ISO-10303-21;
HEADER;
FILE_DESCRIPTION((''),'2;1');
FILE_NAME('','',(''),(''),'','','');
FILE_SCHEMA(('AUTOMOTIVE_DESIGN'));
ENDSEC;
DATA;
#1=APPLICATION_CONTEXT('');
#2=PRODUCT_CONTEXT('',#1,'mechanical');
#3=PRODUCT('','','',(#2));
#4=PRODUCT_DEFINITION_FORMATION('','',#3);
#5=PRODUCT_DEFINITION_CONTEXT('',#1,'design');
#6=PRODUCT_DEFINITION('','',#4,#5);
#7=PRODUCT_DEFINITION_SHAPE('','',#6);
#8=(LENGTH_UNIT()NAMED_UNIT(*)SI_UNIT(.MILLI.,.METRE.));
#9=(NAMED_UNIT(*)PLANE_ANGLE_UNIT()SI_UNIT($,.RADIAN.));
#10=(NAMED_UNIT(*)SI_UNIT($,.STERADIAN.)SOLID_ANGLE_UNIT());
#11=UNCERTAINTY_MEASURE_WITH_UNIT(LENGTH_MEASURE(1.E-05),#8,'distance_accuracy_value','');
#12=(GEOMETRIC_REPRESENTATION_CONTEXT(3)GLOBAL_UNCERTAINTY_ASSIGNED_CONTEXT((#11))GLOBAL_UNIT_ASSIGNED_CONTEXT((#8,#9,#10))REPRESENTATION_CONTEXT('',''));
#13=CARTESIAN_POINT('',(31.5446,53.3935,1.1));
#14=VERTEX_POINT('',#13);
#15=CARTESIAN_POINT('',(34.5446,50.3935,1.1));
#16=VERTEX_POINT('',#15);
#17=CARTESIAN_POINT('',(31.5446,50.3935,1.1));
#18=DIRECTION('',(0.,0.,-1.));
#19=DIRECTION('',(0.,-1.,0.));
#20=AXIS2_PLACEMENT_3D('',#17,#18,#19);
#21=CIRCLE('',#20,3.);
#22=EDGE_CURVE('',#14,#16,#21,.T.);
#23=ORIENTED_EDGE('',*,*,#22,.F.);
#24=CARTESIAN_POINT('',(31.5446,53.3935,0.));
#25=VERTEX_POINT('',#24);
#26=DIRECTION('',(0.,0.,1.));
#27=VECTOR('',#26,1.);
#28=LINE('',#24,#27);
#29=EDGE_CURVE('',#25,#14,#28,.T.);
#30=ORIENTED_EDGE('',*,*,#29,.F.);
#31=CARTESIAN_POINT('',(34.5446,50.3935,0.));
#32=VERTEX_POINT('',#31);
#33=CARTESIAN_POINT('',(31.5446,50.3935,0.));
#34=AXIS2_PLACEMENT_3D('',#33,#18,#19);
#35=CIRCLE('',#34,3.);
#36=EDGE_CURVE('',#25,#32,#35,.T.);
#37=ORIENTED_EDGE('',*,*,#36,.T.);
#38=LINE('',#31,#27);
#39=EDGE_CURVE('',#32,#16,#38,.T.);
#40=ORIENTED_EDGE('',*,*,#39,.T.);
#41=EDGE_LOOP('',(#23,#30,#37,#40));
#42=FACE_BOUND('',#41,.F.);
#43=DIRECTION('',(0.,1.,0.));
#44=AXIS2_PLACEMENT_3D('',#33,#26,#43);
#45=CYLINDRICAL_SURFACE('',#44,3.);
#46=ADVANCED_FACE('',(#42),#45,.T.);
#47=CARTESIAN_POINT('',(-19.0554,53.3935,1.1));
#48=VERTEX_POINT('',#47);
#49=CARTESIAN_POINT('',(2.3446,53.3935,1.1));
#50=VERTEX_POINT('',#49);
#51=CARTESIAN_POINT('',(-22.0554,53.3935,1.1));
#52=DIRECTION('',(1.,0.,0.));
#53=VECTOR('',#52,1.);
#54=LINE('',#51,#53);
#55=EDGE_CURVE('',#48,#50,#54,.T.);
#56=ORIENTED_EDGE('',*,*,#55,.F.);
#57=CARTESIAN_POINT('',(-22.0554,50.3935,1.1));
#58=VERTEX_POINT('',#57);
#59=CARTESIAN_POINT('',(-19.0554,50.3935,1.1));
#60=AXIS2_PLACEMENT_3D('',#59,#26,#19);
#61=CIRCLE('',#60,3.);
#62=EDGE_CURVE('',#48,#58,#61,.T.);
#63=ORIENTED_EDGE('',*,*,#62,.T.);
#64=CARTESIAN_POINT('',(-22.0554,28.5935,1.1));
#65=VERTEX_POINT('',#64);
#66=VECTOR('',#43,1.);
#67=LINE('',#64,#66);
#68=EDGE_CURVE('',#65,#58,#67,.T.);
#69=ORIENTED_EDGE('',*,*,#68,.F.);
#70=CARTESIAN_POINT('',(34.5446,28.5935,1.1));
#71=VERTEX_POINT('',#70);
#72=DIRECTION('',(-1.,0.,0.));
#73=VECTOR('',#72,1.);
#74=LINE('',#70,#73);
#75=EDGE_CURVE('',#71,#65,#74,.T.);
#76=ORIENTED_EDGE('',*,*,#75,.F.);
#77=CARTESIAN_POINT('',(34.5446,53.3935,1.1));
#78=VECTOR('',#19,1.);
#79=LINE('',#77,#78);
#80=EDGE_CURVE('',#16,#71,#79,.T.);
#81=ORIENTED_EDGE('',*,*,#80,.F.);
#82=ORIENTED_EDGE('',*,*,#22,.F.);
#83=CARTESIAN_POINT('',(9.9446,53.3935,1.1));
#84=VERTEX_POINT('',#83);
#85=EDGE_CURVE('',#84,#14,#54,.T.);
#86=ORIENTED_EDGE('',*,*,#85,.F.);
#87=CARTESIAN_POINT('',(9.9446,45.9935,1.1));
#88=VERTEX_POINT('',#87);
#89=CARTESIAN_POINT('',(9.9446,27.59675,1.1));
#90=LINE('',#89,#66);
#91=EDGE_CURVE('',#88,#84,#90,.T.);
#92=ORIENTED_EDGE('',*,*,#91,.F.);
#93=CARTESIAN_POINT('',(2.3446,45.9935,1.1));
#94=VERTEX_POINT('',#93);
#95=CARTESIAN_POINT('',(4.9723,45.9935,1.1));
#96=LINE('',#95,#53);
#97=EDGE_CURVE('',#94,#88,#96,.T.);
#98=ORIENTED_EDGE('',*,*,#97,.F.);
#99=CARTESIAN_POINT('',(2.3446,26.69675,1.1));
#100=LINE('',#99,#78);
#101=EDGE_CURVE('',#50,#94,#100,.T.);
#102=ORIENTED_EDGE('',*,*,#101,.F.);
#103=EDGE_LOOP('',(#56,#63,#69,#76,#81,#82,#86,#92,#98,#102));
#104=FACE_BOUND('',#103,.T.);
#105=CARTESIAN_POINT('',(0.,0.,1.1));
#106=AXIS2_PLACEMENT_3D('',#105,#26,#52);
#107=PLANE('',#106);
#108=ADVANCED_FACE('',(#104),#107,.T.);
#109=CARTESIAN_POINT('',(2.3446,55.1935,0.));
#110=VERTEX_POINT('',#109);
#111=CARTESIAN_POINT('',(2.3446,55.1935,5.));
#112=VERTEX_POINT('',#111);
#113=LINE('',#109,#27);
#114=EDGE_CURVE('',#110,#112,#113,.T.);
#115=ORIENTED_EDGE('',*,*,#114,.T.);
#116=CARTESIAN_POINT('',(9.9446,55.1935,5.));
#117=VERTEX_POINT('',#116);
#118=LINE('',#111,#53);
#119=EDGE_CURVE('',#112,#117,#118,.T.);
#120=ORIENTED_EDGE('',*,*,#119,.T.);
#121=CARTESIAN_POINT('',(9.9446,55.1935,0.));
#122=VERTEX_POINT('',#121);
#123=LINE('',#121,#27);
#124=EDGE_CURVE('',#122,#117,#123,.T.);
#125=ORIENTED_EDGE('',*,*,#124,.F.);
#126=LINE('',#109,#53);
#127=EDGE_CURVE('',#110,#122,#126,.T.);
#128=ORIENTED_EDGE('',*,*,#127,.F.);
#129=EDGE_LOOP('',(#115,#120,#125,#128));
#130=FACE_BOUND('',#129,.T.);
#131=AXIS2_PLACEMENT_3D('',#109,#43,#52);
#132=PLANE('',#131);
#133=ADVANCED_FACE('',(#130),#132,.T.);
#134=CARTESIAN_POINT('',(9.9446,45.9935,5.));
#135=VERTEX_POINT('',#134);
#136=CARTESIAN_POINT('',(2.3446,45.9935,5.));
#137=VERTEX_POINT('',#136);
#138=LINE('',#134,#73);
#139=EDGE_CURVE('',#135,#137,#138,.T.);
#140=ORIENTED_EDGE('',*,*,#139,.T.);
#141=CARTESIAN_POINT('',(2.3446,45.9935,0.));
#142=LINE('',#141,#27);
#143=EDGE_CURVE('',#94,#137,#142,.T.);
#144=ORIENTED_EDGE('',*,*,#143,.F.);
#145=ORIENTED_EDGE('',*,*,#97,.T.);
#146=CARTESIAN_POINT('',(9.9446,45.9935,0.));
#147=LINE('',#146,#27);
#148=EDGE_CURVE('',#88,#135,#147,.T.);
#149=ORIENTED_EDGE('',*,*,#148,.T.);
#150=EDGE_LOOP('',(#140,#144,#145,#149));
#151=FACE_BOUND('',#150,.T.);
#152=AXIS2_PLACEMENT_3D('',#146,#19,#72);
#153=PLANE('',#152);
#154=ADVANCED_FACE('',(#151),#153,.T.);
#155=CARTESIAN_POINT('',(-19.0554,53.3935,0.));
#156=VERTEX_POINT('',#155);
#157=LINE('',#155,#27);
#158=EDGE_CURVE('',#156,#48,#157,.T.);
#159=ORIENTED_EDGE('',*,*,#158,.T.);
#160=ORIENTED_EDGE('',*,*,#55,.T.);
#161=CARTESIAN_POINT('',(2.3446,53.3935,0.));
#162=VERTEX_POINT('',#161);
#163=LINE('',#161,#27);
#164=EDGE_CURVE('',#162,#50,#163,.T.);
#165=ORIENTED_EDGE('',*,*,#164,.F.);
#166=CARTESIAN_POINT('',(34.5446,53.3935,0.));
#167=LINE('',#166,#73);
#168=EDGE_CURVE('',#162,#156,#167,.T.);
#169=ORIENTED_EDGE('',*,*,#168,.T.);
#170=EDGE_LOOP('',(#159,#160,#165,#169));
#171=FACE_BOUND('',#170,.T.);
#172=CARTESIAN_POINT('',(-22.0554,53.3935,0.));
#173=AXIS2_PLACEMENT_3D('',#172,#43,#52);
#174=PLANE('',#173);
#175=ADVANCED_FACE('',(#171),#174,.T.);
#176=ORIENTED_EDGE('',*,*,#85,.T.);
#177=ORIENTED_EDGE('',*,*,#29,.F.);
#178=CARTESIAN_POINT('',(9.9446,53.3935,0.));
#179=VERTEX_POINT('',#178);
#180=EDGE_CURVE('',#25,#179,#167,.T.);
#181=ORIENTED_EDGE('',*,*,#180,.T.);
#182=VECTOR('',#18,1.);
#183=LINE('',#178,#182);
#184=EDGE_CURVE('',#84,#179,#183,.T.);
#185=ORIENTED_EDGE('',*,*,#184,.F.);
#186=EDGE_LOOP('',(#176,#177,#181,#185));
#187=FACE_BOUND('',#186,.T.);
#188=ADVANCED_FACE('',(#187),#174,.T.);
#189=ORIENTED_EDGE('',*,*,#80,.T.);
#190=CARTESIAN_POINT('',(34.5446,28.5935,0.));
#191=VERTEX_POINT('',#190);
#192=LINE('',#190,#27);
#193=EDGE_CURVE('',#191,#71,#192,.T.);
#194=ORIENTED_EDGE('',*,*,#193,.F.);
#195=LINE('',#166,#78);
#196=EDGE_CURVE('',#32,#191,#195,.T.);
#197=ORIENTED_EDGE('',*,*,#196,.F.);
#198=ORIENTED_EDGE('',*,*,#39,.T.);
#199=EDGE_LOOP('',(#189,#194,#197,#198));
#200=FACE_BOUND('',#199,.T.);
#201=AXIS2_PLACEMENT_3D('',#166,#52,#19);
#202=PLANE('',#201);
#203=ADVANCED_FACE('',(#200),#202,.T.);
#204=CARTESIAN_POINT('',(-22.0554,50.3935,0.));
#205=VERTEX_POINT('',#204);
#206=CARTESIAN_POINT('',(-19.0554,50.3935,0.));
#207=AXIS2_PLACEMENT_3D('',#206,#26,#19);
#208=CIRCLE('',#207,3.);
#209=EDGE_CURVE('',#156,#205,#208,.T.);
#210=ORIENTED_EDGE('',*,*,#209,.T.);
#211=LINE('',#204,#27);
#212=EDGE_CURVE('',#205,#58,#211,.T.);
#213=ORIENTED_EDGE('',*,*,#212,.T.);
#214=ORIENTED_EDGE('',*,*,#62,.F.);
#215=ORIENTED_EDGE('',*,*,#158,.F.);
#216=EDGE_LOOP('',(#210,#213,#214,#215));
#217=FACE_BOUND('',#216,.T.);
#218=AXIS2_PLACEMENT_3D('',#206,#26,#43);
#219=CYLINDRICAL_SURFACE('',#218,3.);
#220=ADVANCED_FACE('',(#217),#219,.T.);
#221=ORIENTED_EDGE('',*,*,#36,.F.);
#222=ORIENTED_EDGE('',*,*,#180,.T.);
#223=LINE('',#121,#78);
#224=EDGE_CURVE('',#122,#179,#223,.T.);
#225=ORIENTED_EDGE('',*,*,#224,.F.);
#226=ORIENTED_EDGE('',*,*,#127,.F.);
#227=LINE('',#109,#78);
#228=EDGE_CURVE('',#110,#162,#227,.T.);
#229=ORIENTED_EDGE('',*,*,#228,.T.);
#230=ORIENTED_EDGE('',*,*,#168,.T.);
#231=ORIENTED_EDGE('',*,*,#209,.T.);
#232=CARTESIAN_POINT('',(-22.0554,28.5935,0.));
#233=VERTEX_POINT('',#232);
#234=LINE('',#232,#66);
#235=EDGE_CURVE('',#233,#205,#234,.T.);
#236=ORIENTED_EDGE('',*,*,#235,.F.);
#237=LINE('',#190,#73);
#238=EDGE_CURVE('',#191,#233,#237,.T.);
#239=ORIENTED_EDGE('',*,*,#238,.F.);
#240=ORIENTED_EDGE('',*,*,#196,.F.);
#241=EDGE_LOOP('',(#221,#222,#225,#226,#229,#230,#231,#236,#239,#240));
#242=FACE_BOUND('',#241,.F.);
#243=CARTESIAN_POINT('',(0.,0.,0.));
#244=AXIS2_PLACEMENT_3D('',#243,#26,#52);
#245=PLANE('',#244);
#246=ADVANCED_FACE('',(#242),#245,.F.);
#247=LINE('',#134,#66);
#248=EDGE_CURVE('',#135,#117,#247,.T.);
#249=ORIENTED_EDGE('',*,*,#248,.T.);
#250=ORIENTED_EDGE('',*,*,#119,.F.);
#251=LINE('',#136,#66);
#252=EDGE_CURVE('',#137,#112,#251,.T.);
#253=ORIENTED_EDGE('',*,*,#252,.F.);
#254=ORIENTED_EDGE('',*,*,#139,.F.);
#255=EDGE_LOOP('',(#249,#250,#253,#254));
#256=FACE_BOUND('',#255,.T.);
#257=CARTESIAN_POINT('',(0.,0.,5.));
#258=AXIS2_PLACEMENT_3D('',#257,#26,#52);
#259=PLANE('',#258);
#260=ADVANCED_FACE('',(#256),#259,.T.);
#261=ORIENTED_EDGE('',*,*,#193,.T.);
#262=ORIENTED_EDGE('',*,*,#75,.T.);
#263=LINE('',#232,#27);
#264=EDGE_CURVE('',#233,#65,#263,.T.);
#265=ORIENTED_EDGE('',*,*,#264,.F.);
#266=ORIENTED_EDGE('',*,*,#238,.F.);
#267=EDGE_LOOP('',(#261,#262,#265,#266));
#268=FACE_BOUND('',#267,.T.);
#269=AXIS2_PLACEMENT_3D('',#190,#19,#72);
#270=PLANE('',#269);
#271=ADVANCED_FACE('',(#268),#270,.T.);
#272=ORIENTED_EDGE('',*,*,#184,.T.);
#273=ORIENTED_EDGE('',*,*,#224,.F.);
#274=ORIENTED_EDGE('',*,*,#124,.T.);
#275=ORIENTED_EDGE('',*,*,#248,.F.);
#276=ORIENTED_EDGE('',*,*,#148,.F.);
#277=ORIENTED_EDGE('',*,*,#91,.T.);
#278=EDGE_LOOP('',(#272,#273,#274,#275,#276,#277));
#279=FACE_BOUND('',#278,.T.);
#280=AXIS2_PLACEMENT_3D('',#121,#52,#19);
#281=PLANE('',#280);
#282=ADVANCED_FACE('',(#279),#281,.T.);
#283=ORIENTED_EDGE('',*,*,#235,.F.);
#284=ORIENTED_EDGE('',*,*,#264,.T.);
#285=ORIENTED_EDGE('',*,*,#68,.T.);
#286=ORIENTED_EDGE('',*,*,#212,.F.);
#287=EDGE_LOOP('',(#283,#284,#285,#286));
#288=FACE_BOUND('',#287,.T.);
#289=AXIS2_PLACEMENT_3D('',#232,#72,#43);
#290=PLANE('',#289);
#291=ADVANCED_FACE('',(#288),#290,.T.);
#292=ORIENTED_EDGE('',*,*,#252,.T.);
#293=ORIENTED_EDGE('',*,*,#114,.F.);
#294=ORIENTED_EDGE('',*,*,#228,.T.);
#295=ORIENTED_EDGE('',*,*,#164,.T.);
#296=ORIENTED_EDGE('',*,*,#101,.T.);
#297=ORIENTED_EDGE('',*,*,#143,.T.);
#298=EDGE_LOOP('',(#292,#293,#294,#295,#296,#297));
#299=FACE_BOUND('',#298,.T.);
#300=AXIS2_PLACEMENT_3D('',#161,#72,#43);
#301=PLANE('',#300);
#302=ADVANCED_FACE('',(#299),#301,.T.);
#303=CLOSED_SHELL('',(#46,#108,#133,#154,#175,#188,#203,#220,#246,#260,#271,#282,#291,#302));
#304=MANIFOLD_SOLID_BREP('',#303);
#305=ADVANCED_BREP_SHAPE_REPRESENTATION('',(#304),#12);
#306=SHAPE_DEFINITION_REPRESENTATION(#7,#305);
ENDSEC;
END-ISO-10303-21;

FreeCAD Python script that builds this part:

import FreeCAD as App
import Part
import Sketcher

V = App.Vector
Q = App.Units.Quantity


def edges_at(feature, points):
    """Names of the edges that pass closest to the given points."""
    edges = feature.Shape.Edges
    near = lambda p: min(range(len(edges)), key=lambda i: edges[i].distToShape(Part.Vertex(*p))[0])
    return sorted({f"Edge{near(p) + 1}" for p in points})

doc = App.newDocument("Part")
params = doc.addObject("Spreadsheet::Sheet", "Params")
for row, (alias, value) in enumerate([
    ("sketch1_width", "56.6 mm"),
    ("sketch1_height", "24.8 mm"),
    ("pad1_length", "1.1 mm"),
    ("sketch2_width", "7.6 mm"),
    ("sketch2_height", "9.2 mm"),
    ("pad2_length", "5 mm"),
    ("fillet_radius", "3 mm"),
], start=1):
    params.set(f"A{row}", alias)
    params.set(f"B{row}", "=" + value)
    params.setAlias(f"B{row}", alias)

body = doc.addObject("PartDesign::Body", "Body")

# Sketch on XY plane
sketch1 = body.newObject("Sketcher::SketchObject", "Sketch")
sketch1.AttachmentSupport = (doc.getObject("XY_Plane"), [""])
sketch1.MapMode = "FlatFace"
sketch1.addGeometry([
    Part.LineSegment(V(-22.0554, 53.3935, 0), V(-22.0554, 28.5935, 0)),
    Part.LineSegment(V(-22.0554, 28.5935, 0), V(34.5446, 28.5935, 0)),
    Part.LineSegment(V(34.5446, 28.5935, 0), V(34.5446, 53.3935, 0)),
    Part.LineSegment(V(34.5446, 53.3935, 0), V(-22.0554, 53.3935, 0)),
], False)
sketch1.addConstraint([
    Sketcher.Constraint("Coincident", 0, 2, 1, 1),
    Sketcher.Constraint("Coincident", 1, 2, 2, 1),
    Sketcher.Constraint("Coincident", 2, 2, 3, 1),
    Sketcher.Constraint("Coincident", 3, 2, 0, 1),
    Sketcher.Constraint("Vertical", 0),
    Sketcher.Constraint("Horizontal", 1),
    Sketcher.Constraint("Vertical", 2),
    Sketcher.Constraint("Horizontal", 3),
    Sketcher.Constraint("DistanceX", 1, 1, 1, 2, Q("56.6 mm")),
    Sketcher.Constraint("DistanceY", 0, 2, 0, 1, Q("24.8 mm")),
    Sketcher.Constraint("DistanceX", 0, 2, -1, 1, Q("22.0554 mm")),
    Sketcher.Constraint("DistanceY", -1, 1, 0, 2, Q("28.5935 mm")),
])
sketch1.setExpression("Constraints[8]", "Params.sketch1_width")
sketch1.setExpression("Constraints[9]", "Params.sketch1_height")
pad1 = body.newObject("PartDesign::Pad", "Pad")
pad1.Profile = sketch1
pad1.setExpression("Length", "Params.pad1_length")

# Sketch on XY plane
sketch2 = body.newObject("Sketcher::SketchObject", "Sketch001")
sketch2.AttachmentSupport = (doc.getObject("XY_Plane"), [""])
sketch2.MapMode = "FlatFace"
sketch2.addGeometry([
    Part.LineSegment(V(2.3446, 55.1935, 0), V(2.3446, 45.9935, 0)),
    Part.LineSegment(V(2.3446, 45.9935, 0), V(9.9446, 45.9935, 0)),
    Part.LineSegment(V(9.9446, 45.9935, 0), V(9.9446, 55.1935, 0)),
    Part.LineSegment(V(9.9446, 55.1935, 0), V(2.3446, 55.1935, 0)),
], False)
sketch2.addConstraint([
    Sketcher.Constraint("Coincident", 0, 2, 1, 1),
    Sketcher.Constraint("Coincident", 1, 2, 2, 1),
    Sketcher.Constraint("Coincident", 2, 2, 3, 1),
    Sketcher.Constraint("Coincident", 3, 2, 0, 1),
    Sketcher.Constraint("Vertical", 0),
    Sketcher.Constraint("Horizontal", 1),
    Sketcher.Constraint("Vertical", 2),
    Sketcher.Constraint("Horizontal", 3),
    Sketcher.Constraint("DistanceX", 1, 1, 1, 2, Q("7.6 mm")),
    Sketcher.Constraint("DistanceY", 0, 2, 0, 1, Q("9.2 mm")),
    Sketcher.Constraint("DistanceX", -1, 1, 0, 2, Q("2.3446 mm")),
    Sketcher.Constraint("DistanceY", -1, 1, 0, 2, Q("45.9935 mm")),
])
sketch2.setExpression("Constraints[8]", "Params.sketch2_width")
sketch2.setExpression("Constraints[9]", "Params.sketch2_height")
pad2 = body.newObject("PartDesign::Pad", "Pad001")
pad2.Profile = sketch2
pad2.setExpression("Length", "Params.pad2_length")
doc.recompute()

fillet = body.newObject("PartDesign::Fillet", "Fillet")
fillet.Base = (pad2, edges_at(pad2, [(-22.055, 53.394, 0.55), (34.545, 53.394, 0.55)]))
fillet.setExpression("Radius", "Params.fillet_radius")

doc.recompute()
